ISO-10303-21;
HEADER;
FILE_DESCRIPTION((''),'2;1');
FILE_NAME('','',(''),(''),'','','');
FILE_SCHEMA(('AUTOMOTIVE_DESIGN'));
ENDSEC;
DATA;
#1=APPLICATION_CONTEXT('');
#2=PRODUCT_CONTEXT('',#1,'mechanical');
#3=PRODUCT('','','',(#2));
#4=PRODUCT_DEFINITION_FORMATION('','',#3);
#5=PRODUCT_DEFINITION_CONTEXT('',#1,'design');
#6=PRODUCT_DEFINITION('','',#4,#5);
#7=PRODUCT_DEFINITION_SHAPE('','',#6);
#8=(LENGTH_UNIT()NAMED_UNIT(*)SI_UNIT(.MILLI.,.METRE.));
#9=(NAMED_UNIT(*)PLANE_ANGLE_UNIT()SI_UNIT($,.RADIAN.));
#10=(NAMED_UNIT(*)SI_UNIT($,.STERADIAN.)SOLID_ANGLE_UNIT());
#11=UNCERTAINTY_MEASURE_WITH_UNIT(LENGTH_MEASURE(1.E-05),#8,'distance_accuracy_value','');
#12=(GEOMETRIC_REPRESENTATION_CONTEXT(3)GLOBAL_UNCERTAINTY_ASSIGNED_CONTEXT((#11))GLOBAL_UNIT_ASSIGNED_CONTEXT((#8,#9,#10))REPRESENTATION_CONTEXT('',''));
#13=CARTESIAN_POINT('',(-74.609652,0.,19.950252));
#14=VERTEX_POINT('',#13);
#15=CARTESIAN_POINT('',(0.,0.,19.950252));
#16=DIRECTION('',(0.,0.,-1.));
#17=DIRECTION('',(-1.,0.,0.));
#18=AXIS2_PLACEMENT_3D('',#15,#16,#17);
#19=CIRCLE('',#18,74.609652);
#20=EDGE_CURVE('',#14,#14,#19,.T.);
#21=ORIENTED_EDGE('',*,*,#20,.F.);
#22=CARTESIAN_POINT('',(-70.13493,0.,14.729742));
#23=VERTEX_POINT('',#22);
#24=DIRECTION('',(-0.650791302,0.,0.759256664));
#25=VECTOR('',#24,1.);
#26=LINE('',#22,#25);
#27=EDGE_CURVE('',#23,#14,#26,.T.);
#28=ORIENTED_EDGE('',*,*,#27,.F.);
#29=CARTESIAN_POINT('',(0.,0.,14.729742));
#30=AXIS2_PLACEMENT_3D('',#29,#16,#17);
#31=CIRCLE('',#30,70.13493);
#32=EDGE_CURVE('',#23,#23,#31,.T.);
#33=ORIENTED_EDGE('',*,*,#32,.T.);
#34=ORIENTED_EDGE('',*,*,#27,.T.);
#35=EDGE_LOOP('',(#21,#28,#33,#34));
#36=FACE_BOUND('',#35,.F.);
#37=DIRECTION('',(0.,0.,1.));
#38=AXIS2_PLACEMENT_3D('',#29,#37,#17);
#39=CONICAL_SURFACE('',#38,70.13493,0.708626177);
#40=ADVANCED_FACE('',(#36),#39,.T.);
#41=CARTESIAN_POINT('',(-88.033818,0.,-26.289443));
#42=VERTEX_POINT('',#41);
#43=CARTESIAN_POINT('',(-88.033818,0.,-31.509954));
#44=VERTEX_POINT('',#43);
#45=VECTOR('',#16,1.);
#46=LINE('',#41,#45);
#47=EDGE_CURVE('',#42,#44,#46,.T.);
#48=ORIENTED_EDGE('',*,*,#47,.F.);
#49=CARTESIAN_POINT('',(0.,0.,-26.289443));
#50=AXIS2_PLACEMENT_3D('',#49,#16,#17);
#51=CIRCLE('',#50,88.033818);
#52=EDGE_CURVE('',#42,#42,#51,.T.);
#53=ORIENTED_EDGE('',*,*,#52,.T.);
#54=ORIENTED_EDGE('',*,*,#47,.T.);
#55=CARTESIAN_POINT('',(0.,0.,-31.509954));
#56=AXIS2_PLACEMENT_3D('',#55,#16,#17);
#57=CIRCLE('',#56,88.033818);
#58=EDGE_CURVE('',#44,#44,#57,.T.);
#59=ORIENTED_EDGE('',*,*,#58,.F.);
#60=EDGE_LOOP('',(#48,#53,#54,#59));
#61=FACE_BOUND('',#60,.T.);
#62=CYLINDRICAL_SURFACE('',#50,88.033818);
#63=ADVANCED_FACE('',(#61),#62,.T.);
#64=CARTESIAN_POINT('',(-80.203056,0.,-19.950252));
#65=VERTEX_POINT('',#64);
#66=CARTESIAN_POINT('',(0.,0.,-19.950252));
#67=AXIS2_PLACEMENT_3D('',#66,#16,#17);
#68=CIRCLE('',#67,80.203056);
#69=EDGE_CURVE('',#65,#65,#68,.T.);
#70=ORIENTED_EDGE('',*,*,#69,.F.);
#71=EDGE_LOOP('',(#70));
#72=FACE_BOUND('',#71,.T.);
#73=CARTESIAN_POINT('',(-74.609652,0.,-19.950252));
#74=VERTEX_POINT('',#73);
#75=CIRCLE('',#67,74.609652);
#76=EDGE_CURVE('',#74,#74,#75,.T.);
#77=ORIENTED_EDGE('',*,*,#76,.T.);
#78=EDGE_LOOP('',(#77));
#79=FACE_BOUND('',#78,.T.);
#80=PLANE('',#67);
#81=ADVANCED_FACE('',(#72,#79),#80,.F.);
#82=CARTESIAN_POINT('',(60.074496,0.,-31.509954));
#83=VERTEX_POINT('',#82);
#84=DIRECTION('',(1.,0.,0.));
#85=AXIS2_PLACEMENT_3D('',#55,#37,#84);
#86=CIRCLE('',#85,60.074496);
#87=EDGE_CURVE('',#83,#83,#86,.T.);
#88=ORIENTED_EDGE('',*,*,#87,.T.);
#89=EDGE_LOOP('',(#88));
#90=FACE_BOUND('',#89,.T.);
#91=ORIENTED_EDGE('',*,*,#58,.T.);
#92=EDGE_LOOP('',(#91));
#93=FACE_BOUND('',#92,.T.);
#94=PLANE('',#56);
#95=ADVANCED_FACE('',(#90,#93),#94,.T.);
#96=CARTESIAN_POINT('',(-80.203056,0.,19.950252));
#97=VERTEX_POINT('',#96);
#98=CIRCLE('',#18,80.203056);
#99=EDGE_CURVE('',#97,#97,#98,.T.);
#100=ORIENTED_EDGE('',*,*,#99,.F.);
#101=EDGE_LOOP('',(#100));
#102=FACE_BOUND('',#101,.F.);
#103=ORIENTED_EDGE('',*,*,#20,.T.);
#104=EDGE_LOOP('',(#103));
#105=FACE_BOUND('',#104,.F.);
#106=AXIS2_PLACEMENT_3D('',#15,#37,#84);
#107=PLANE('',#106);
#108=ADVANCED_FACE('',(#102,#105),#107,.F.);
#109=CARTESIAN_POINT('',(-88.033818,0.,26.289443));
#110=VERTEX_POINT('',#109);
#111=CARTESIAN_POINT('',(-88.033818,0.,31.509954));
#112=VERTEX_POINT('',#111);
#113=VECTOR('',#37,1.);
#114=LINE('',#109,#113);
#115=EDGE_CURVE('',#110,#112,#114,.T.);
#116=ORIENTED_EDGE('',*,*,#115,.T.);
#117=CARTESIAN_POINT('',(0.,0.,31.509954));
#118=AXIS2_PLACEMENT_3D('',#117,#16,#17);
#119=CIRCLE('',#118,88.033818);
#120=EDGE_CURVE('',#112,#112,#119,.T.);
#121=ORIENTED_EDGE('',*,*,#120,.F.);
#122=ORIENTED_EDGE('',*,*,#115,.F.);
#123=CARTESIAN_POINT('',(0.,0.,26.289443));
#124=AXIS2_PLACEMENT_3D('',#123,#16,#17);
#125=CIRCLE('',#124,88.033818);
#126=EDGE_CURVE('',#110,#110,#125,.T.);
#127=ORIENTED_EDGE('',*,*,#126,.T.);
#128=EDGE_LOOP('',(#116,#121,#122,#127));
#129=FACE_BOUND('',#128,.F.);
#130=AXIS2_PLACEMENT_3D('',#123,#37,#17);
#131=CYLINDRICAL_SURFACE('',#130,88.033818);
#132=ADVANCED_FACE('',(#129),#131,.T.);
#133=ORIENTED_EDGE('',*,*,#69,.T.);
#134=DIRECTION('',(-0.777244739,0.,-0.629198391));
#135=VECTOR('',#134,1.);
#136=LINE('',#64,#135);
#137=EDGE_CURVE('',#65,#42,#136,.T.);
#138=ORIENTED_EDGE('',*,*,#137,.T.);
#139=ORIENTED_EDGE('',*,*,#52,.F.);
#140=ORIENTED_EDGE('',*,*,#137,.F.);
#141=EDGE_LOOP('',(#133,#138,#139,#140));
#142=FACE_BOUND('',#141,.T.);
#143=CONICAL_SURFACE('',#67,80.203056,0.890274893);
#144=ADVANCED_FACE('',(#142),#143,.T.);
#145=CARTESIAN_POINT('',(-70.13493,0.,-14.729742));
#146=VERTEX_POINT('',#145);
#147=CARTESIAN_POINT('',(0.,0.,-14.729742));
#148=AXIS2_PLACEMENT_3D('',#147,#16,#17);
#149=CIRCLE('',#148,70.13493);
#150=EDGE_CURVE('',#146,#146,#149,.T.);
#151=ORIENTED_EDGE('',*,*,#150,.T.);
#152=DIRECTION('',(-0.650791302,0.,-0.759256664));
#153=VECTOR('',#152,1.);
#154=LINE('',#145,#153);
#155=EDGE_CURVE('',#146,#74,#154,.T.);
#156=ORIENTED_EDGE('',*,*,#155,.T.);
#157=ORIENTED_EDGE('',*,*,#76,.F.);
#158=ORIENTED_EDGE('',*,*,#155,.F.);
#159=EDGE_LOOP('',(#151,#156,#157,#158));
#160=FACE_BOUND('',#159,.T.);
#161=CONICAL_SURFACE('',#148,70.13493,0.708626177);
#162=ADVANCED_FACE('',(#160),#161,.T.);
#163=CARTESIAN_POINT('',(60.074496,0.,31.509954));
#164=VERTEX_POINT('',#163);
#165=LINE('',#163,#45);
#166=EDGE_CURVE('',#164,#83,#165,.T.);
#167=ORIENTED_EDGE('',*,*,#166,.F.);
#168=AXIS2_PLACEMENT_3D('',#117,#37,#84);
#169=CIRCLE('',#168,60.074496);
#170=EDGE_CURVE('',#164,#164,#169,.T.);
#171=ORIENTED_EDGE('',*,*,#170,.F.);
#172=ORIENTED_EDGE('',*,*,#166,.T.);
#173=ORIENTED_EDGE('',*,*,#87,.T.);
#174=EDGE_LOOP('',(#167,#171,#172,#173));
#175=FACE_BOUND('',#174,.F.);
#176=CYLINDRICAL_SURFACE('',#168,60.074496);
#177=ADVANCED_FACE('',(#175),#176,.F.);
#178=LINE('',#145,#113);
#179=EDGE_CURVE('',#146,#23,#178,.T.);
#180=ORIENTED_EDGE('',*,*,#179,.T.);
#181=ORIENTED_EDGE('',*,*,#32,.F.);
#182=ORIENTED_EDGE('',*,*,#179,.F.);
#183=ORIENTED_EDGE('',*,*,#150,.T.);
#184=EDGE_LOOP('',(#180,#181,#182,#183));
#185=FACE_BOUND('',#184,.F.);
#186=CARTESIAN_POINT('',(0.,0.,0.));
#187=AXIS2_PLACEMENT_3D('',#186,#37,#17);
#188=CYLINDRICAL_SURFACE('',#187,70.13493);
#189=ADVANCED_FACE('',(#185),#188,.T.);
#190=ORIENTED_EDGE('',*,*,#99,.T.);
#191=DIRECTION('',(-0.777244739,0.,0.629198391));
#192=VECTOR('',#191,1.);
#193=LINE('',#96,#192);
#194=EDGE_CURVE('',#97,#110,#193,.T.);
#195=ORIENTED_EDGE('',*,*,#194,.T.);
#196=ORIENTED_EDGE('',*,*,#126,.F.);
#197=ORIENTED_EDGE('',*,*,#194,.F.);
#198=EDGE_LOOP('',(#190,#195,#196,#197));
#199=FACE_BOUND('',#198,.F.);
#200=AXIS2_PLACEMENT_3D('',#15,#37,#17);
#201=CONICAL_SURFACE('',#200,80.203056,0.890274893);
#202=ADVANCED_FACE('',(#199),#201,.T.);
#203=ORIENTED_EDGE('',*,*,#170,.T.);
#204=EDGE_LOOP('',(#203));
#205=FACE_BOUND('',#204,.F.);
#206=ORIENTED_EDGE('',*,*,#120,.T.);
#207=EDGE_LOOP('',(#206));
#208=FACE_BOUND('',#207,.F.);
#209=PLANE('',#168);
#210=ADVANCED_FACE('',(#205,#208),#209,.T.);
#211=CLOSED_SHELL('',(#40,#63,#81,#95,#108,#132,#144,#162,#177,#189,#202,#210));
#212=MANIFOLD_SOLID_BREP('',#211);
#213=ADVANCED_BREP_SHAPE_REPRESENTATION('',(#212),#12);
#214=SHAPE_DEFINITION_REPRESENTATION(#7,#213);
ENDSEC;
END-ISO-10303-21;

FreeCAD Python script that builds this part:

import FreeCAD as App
import Part
import Sketcher

V = App.Vector

doc = App.newDocument("Part")
body = doc.addObject("PartDesign::Body", "Body")

sketch1 = body.newObject("Sketcher::SketchObject", "Sketch")
sketch1.AttachmentSupport = (doc.getObject("XZ_Plane"), [""])
sketch1.MapMode = "FlatFace"
sketch1.addGeometry(Part.LineSegment(V(0, -31.509954, 0), V(0, 0, 0)), False)
sketch1.addGeometry(Part.LineSegment(V(0, 0, 0), V(-70.13493, 0, 0)), False)
sketch1.addGeometry(Part.LineSegment(V(-70.13493, 0, 0), V(-70.13493, -14.729742, 0)), False)
sketch1.addGeometry(Part.LineSegment(V(-70.13493, -14.729742, 0), V(-74.609652, -19.950252, 0)), False)
sketch1.addGeometry(Part.LineSegment(V(-74.609652, -19.950252, 0), V(-80.203056, -19.950252, 0)), False)
sketch1.addGeometry(Part.LineSegment(V(-80.203056, -19.950252, 0), V(-88.033818, -26.289443, 0)), False)
sketch1.addGeometry(Part.LineSegment(V(-88.033818, -26.289443, 0), V(-88.033818, -31.509954, 0)), False)
sketch1.addGeometry(Part.LineSegment(V(-88.033818, -31.509954, 0), V(0, -31.509954, 0)), False)
sketch1.addConstraint(Sketcher.Constraint("Coincident", 0, 2, 1, 1))
sketch1.addConstraint(Sketcher.Constraint("Coincident", 1, 2, 2, 1))
sketch1.addConstraint(Sketcher.Constraint("Coincident", 2, 2, 3, 1))
sketch1.addConstraint(Sketcher.Constraint("Coincident", 3, 2, 4, 1))
sketch1.addConstraint(Sketcher.Constraint("Coincident", 4, 2, 5, 1))
sketch1.addConstraint(Sketcher.Constraint("Coincident", 5, 2, 6, 1))
sketch1.addConstraint(Sketcher.Constraint("Coincident", 6, 2, 7, 1))
sketch1.addConstraint(Sketcher.Constraint("Coincident", 7, 2, 0, 1))
sketch1.addConstraint(Sketcher.Constraint("Vertical", 0))
sketch1.addConstraint(Sketcher.Constraint("Horizontal", 1))
sketch1.addConstraint(Sketcher.Constraint("Vertical", 2))
sketch1.addConstraint(Sketcher.Constraint("Horizontal", 4))
sketch1.addConstraint(Sketcher.Constraint("Vertical", 6))
sketch1.addConstraint(Sketcher.Constraint("Horizontal", 7))
sketch1.addConstraint(Sketcher.Constraint("Coincident", 0, 2, -1, 1))
sketch1.addConstraint(Sketcher.Constraint("DistanceX", 1, 2, 1, 1, 70.13493))
sketch1.addConstraint(Sketcher.Constraint("DistanceY", 6, 2, 6, 1, 5.220511))
sketch1.addConstraint(Sketcher.Constraint("DistanceY", 5, 2, 2, 2, 11.559701))
sketch1.addConstraint(Sketcher.Constraint("DistanceX", 4, 2, 4, 1, 5.593404))
sketch1.addConstraint(Sketcher.Constraint("DistanceX", 7, 1, 7, 2, 88.033818))
sketch1.addConstraint(Sketcher.Constraint("DistanceY", 0, 1, 0, 2, 31.509954))
sketch1.addConstraint(Sketcher.Constraint("DistanceX", 3, 2, -1, 1, 74.609652))
sketch1.addConstraint(Sketcher.Constraint("DistanceY", 3, 2, -1, 1, 19.950252))
revolution = body.newObject("PartDesign::Revolution", "Revolution")
revolution.Profile = sketch1
revolution.ReferenceAxis = (sketch1, ["V_Axis"])
revolution.Angle = 360
body2 = doc.addObject("PartDesign::Body", "Body001")
doc.recompute()

body2.BaseFeature = body
doc.recompute()

mirroring = doc.addObject("Part::Mirroring", "Mirroring")
mirroring.Source = body
mirroring.Base = V(0, 0, 0)
mirroring.Normal = V(0, 0, 1)
body3 = doc.addObject("PartDesign::Body", "Body002")
body3.BaseFeature = mirroring
boolean = body2.newObject("PartDesign::Boolean", "Boolean")
boolean.Type = "Fuse"
boolean.addObjects([body3])
doc.recompute()

sketch2 = body2.newObject("Sketcher::SketchObject", "Sketch001")
sketch2.AttachmentSupport = (doc.getObject("XY_Plane001"), [""])
sketch2.MapMode = "FlatFace"
sketch2.AttachmentOffset = App.Placement(V(0, 0, 31.509954), App.Rotation())
sketch2.addGeometry(Part.Circle(V(0, 0, 0), V(0, 0, 1), 60.074496), False)
sketch2.addConstraint(Sketcher.Constraint("Coincident", 0, 3, -1, 1))
sketch2.addConstraint(Sketcher.Constraint("Diameter", 0, 120.148992))
pocket1 = body2.newObject("PartDesign::Pocket", "Pocket")
pocket1.Profile = sketch2
pocket1.Length = 139
mirroring.Visibility = False

doc.recompute()
